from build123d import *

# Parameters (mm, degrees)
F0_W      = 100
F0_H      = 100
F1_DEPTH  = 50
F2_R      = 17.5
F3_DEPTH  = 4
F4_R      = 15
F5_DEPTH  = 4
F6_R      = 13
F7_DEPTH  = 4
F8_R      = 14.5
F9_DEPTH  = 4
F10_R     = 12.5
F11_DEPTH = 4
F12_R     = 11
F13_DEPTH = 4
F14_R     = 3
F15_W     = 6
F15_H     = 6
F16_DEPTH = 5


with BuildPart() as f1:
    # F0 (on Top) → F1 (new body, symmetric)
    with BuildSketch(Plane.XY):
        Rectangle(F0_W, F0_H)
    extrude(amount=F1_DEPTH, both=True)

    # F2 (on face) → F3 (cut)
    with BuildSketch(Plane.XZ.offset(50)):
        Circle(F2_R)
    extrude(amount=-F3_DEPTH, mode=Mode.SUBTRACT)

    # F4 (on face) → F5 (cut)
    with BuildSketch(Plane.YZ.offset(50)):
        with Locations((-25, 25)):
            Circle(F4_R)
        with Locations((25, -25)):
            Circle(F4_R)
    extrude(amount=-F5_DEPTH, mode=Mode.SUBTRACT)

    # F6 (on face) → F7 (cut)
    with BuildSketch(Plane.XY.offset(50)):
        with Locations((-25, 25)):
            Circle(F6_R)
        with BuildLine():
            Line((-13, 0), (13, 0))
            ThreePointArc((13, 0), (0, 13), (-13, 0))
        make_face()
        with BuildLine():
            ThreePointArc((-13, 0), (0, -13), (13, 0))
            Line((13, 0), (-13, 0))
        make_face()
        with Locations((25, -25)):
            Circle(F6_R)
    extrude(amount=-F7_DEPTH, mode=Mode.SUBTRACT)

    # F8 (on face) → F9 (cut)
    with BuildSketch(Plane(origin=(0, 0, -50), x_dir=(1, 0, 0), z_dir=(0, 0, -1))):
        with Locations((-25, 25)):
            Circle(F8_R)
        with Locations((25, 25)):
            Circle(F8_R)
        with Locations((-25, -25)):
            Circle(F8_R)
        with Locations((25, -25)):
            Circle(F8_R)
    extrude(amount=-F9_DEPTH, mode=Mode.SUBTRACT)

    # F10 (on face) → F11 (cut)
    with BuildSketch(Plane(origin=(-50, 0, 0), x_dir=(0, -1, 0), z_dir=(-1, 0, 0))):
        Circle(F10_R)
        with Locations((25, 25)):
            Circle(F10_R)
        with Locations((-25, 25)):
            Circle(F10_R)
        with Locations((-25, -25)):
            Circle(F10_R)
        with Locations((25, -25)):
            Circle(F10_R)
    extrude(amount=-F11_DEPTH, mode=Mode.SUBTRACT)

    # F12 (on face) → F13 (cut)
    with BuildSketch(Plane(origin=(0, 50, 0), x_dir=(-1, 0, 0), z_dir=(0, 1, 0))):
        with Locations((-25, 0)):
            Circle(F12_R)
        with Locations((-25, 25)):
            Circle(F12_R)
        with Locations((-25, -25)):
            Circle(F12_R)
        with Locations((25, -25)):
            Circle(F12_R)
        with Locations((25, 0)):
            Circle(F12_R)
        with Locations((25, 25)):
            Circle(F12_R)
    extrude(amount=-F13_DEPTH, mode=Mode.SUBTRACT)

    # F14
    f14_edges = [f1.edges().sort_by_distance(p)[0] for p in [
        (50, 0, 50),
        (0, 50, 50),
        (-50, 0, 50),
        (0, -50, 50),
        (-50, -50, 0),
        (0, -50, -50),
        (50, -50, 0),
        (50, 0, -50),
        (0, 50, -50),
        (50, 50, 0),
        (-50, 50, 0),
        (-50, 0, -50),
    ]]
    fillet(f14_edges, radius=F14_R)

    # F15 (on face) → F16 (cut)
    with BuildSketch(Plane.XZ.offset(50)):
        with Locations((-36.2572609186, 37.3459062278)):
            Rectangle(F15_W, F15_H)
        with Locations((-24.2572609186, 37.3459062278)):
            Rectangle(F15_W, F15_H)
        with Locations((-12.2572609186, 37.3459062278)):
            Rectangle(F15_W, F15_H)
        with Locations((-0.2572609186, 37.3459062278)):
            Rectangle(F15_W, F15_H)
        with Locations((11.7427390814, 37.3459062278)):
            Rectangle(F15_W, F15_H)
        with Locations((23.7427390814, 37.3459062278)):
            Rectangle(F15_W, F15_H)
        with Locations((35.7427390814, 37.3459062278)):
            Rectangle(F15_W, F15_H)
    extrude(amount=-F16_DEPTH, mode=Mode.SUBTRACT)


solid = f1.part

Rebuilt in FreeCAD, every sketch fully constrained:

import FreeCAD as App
import Part
import Sketcher
from FreeCAD import Vector


def edges_at(feature, points):
    """Names of the edges that pass closest to the given points."""
    edges = feature.Shape.Edges
    near = lambda p: min(range(len(edges)), key=lambda i: edges[i].distToShape(Part.Vertex(*p))[0])
    return sorted({f"Edge{near(p) + 1}" for p in points})

doc = App.newDocument("Part")
body = doc.addObject("PartDesign::Body", "Body")

# Sketch on XY plane
sketch1 = doc.addObject("Sketcher::SketchObject", "Sketch")
body.addObject(sketch1)
sketch1.AttachmentSupport = (doc.XY_Plane, [""])
sketch1.MapMode = "FlatFace"
sketch1.addGeometry([
    Part.LineSegment(Vector(-50, 50, 0), Vector(-50, -50, 0)),
    Part.LineSegment(Vector(-50, -50, 0), Vector(50, -50, 0)),
    Part.LineSegment(Vector(50, -50, 0), Vector(50, 50, 0)),
    Part.LineSegment(Vector(50, 50, 0), Vector(-50, 50, 0)),
], False)
sketch1.addConstraint([
    Sketcher.Constraint("Coincident", 0, 2, 1, 1),
    Sketcher.Constraint("Coincident", 1, 2, 2, 1),
    Sketcher.Constraint("Coincident", 2, 2, 3, 1),
    Sketcher.Constraint("Coincident", 3, 2, 0, 1),
    Sketcher.Constraint("Vertical", 0),
    Sketcher.Constraint("Horizontal", 1),
    Sketcher.Constraint("Vertical", 2),
    Sketcher.Constraint("Horizontal", 3),
    Sketcher.Constraint("Symmetric", 0, 2, 2, 2, -1, 1),
    Sketcher.Constraint("Equal", 3, 0),
    Sketcher.Constraint("DistanceX", 1, 1, 1, 2, 100.0),
])
pad1 = doc.addObject("PartDesign::Pad", "Pad")
body.addObject(pad1)
pad1.Profile = sketch1
pad1.Length = 100
pad1.Midplane = True

# Sketch on XZ plane
sketch2 = doc.addObject("Sketcher::SketchObject", "Sketch001")
body.addObject(sketch2)
sketch2.AttachmentSupport = (doc.XZ_Plane, [""])
sketch2.MapMode = "FlatFace"
sketch2.AttachmentOffset = App.Placement(Vector(0, 0, 50), App.Rotation())
sketch2.addGeometry(Part.Circle(Vector(0, 0, 0), Vector(0, 0, 1), 18), False)
sketch2.addConstraint([
    Sketcher.Constraint("Coincident", 0, 3, -1, 1),
    Sketcher.Constraint("Diameter", 0, 35.0),
])
pocket1 = doc.addObject("PartDesign::Pocket", "Pocket")
body.addObject(pocket1)
pocket1.Profile = sketch2
pocket1.Length = 4

# Sketch on YZ plane
sketch3 = doc.addObject("Sketcher::SketchObject", "Sketch002")
body.addObject(sketch3)
sketch3.AttachmentSupport = (doc.YZ_Plane, [""])
sketch3.MapMode = "FlatFace"
sketch3.AttachmentOffset = App.Placement(Vector(0, 0, 50), App.Rotation())
sketch3.addGeometry([
    Part.Circle(Vector(-25, 25, 0), Vector(0, 0, 1), 15),
    Part.Circle(Vector(25, -25, 0), Vector(0, 0, 1), 15),
], False)
sketch3.addConstraint([
    Sketcher.Constraint("Equal", 0, 1),
    Sketcher.Constraint("Symmetric", 0, 3, 1, 3, -1, 1),
    Sketcher.Constraint("Diameter", 0, 30.0),
    Sketcher.Constraint("DistanceX", 0, 3, -1, 1, 25.0),
    Sketcher.Constraint("DistanceY", -1, 1, 0, 3, 25.0),
])
pocket2 = doc.addObject("PartDesign::Pocket", "Pocket001")
body.addObject(pocket2)
pocket2.Profile = sketch3
pocket2.Length = 4

# Sketch on XY plane
sketch4 = doc.addObject("Sketcher::SketchObject", "Sketch003")
body.addObject(sketch4)
sketch4.AttachmentSupport = (doc.XY_Plane, [""])
sketch4.MapMode = "FlatFace"
sketch4.AttachmentOffset = App.Placement(Vector(0, 0, 50), App.Rotation())
sketch4.addGeometry([
    Part.Circle(Vector(-25, 25, 0), Vector(0, 0, 1), 13),
    Part.Circle(Vector(0, 0, 0), Vector(0, 0, 1), 13),
    Part.Circle(Vector(25, -25, 0), Vector(0, 0, 1), 13),
], False)
sketch4.addConstraint([
    Sketcher.Constraint("Coincident", 1, 3, -1, 1),
    Sketcher.Constraint("Equal", 0, 1),
    Sketcher.Constraint("Equal", 1, 2),
    Sketcher.Constraint("Symmetric", 0, 3, 2, 3, -1, 1),
    Sketcher.Constraint("Diameter", 0, 26.0),
    Sketcher.Constraint("DistanceX", 0, 3, -1, 1, 25.0),
    Sketcher.Constraint("DistanceY", -1, 1, 0, 3, 25.0),
])
pocket3 = doc.addObject("PartDesign::Pocket", "Pocket002")
body.addObject(pocket3)
pocket3.Profile = sketch4
pocket3.Length = 4

# Sketch on XY plane
sketch5 = doc.addObject("Sketcher::SketchObject", "Sketch004")
body.addObject(sketch5)
sketch5.AttachmentSupport = (doc.XY_Plane, [""])
sketch5.MapMode = "FlatFace"
sketch5.AttachmentOffset = App.Placement(Vector(0, 0, -50), App.Rotation())
sketch5.addGeometry([
    Part.Circle(Vector(-25, -25, 0), Vector(0, 0, 1), 14),
    Part.Circle(Vector(25, -25, 0), Vector(0, 0, 1), 14),
    Part.Circle(Vector(-25, 25, 0), Vector(0, 0, 1), 14),
    Part.Circle(Vector(25, 25, 0), Vector(0, 0, 1), 14),
], False)
sketch5.addConstraint([
    Sketcher.Constraint("Equal", 0, 1),
    Sketcher.Constraint("Equal", 1, 2),
    Sketcher.Constraint("Equal", 2, 3),
    Sketcher.Constraint("Symmetric", 1, 3, 2, 3, -1, 1),
    Sketcher.Constraint("Symmetric", 0, 3, 3, 3, -1, 1),
    Sketcher.Constraint("Symmetric", 0, 3, 1, 3, -2),
    Sketcher.Constraint("Diameter", 0, 29.0),
    Sketcher.Constraint("DistanceX", 0, 3, -1, 1, 25.0),
    Sketcher.Constraint("DistanceY", 0, 3, -1, 1, 25.0),
])
pocket4 = doc.addObject("PartDesign::Pocket", "Pocket003")
body.addObject(pocket4)
pocket4.Profile = sketch5
pocket4.Length = 4
pocket4.Reversed = True

# Sketch on YZ plane
sketch6 = doc.addObject("Sketcher::SketchObject", "Sketch005")
body.addObject(sketch6)
sketch6.AttachmentSupport = (doc.YZ_Plane, [""])
sketch6.MapMode = "FlatFace"
sketch6.AttachmentOffset = App.Placement(Vector(0, 0, -50), App.Rotation())
sketch6.addGeometry([
    Part.Circle(Vector(0, 0, 0), Vector(0, 0, 1), 12),  # 0
    Part.Circle(Vector(-25, 25, 0), Vector(0, 0, 1), 12),  # 1
    Part.Circle(Vector(25, 25, 0), Vector(0, 0, 1), 12),  # 2
    Part.Circle(Vector(25, -25, 0), Vector(0, 0, 1), 12),  # 3
    Part.Circle(Vector(-25, -25, 0), Vector(0, 0, 1), 12),  # 4
], False)
sketch6.addConstraint([
    Sketcher.Constraint("Coincident", 0, 3, -1, 1),
    Sketcher.Constraint("Equal", 0, 1),
    Sketcher.Constraint("Equal", 1, 2),
    Sketcher.Constraint("Equal", 2, 3),
    Sketcher.Constraint("Equal", 3, 4),
    Sketcher.Constraint("Symmetric", 1, 3, 3, 3, -1, 1),
    Sketcher.Constraint("Symmetric", 2, 3, 4, 3, -1, 1),
    Sketcher.Constraint("Symmetric", 1, 3, 2, 3, -2),
    Sketcher.Constraint("Diameter", 0, 25.0),
    Sketcher.Constraint("DistanceX", 1, 3, -1, 1, 25.0),
    Sketcher.Constraint("DistanceY", -1, 1, 1, 3, 25.0),
])
pocket5 = doc.addObject("PartDesign::Pocket", "Pocket004")
body.addObject(pocket5)
pocket5.Profile = sketch6
pocket5.Length = 4
pocket5.Reversed = True

# Sketch on XZ plane
sketch7 = doc.addObject("Sketcher::SketchObject", "Sketch006")
body.addObject(sketch7)
sketch7.AttachmentSupport = (doc.XZ_Plane, [""])
sketch7.MapMode = "FlatFace"
sketch7.AttachmentOffset = App.Placement(Vector(0, 0, -50), App.Rotation())
sketch7.addGeometry([
    Part.Circle(Vector(25, 0, 0), Vector(0, 0, 1), 11),  # 0
    Part.Circle(Vector(25, 25, 0), Vector(0, 0, 1), 11),  # 1
    Part.Circle(Vector(25, -25, 0), Vector(0, 0, 1), 11),  # 2
    Part.Circle(Vector(-25, -25, 0), Vector(0, 0, 1), 11),  # 3
    Part.Circle(Vector(-25, 0, 0), Vector(0, 0, 1), 11),  # 4
    Part.Circle(Vector(-25, 25, 0), Vector(0, 0, 1), 11),  # 5
], False)
sketch7.addConstraint([
    Sketcher.Constraint("Equal", 0, 1),
    Sketcher.Constraint("Equal", 1, 2),
    Sketcher.Constraint("Equal", 2, 3),
    Sketcher.Constraint("Equal", 3, 4),
    Sketcher.Constraint("Equal", 4, 5),
    Sketcher.Constraint("Symmetric", 1, 3, 3, 3, -1, 1),
    Sketcher.Constraint("Symmetric", 0, 3, 4, 3, -1, 1),
    Sketcher.Constraint("Symmetric", 2, 3, 5, 3, -1, 1),
    Sketcher.Constraint("Symmetric", 2, 3, 3, 3, -2),
    Sketcher.Constraint("PointOnObject", 0, 3, -1),
    Sketcher.Constraint("Vertical", 0, 3, 1, 3),
    Sketcher.Constraint("Diameter", 0, 22.0),
    Sketcher.Constraint("DistanceX", -1, 1, 0, 3, 25.0),
    Sketcher.Constraint("DistanceY", -1, 1, 1, 3, 25.0),
])
pocket6 = doc.addObject("PartDesign::Pocket", "Pocket005")
body.addObject(pocket6)
pocket6.Profile = sketch7
pocket6.Length = 4
pocket6.Reversed = True
doc.recompute()

fillet = doc.addObject("PartDesign::Fillet", "Fillet")
body.addObject(fillet)
fillet.Base = (pocket6, edges_at(pocket6, [
    (50, 0, 50),
    (0, 50, 50),
    (-50, 0, 50),
    (0, -50, 50),
    (-50, -50, 0),
    (0, -50, -50),
    (50, -50, 0),
    (50, 0, -50),
    (0, 50, -50),
    (50, 50, 0),
    (-50, 50, 0),
    (-50, 0, -50),
]))
fillet.Radius = 3

# Sketch on XZ plane
sketch8 = doc.addObject("Sketcher::SketchObject", "Sketch007")
body.addObject(sketch8)
sketch8.AttachmentSupport = (doc.XZ_Plane, [""])
sketch8.MapMode = "FlatFace"
sketch8.AttachmentOffset = App.Placement(Vector(0, 0, 50), App.Rotation())
sketch8.addGeometry([
    Part.LineSegment(Vector(-39, 40, 0), Vector(-39, 34, 0)),  # 0
    Part.LineSegment(Vector(-39, 34, 0), Vector(-33, 34, 0)),  # 1
    Part.LineSegment(Vector(-33, 34, 0), Vector(-33, 40, 0)),  # 2
    Part.LineSegment(Vector(-33, 40, 0), Vector(-39, 40, 0)),  # 3
    Part.LineSegment(Vector(-27, 40, 0), Vector(-27, 34, 0)),  # 4
    Part.LineSegment(Vector(-27, 34, 0), Vector(-21, 34, 0)),  # 5
    Part.LineSegment(Vector(-21, 34, 0), Vector(-21, 40, 0)),  # 6
    Part.LineSegment(Vector(-21, 40, 0), Vector(-27, 40, 0)),  # 7
    Part.LineSegment(Vector(-15, 40, 0), Vector(-15, 34, 0)),  # 8
    Part.LineSegment(Vector(-15, 34, 0), Vector(-9, 34, 0)),  # 9
    Part.LineSegment(Vector(-9, 34, 0), Vector(-9, 40, 0)),  # 10
    Part.LineSegment(Vector(-9, 40, 0), Vector(-15, 40, 0)),  # 11
    Part.LineSegment(Vector(-3, 40, 0), Vector(-3, 34, 0)),  # 12
    Part.LineSegment(Vector(-3, 34, 0), Vector(3, 34, 0)),  # 13
    Part.LineSegment(Vector(3, 34, 0), Vector(3, 40, 0)),  # 14
    Part.LineSegment(Vector(3, 40, 0), Vector(-3, 40, 0)),  # 15
    Part.LineSegment(Vector(9, 40, 0), Vector(9, 34, 0)),  # 16
    Part.LineSegment(Vector(9, 34, 0), Vector(15, 34, 0)),  # 17
    Part.LineSegment(Vector(15, 34, 0), Vector(15, 40, 0)),  # 18
    Part.LineSegment(Vector(15, 40, 0), Vector(9, 40, 0)),  # 19
    Part.LineSegment(Vector(21, 40, 0), Vector(21, 34, 0)),  # 20
    Part.LineSegment(Vector(21, 34, 0), Vector(27, 34, 0)),  # 21
    Part.LineSegment(Vector(27, 34, 0), Vector(27, 40, 0)),  # 22
    Part.LineSegment(Vector(27, 40, 0), Vector(21, 40, 0)),  # 23
    Part.LineSegment(Vector(33, 40, 0), Vector(33, 34, 0)),  # 24
    Part.LineSegment(Vector(33, 34, 0), Vector(39, 34, 0)),  # 25
    Part.LineSegment(Vector(39, 34, 0), Vector(39, 40, 0)),  # 26
    Part.LineSegment(Vector(39, 40, 0), Vector(33, 40, 0)),  # 27
], False)
sketch8.addConstraint([
    Sketcher.Constraint("Coincident", 0, 2, 1, 1),
    Sketcher.Constraint("Coincident", 1, 2, 2, 1),
    Sketcher.Constraint("Coincident", 2, 2, 3, 1),
    Sketcher.Constraint("Coincident", 3, 2, 0, 1),
    Sketcher.Constraint("Coincident", 4, 2, 5, 1),
    Sketcher.Constraint("Coincident", 5, 2, 6, 1),
    Sketcher.Constraint("Coincident", 6, 2, 7, 1),
    Sketcher.Constraint("Coincident", 7, 2, 4, 1),
    Sketcher.Constraint("Coincident", 8, 2, 9, 1),
    Sketcher.Constraint("Coincident", 9, 2, 10, 1),
    Sketcher.Constraint("Coincident", 10, 2, 11, 1),
    Sketcher.Constraint("Coincident", 11, 2, 8, 1),
    Sketcher.Constraint("Coincident", 12, 2, 13, 1),
    Sketcher.Constraint("Coincident", 13, 2, 14, 1),
    Sketcher.Constraint("Coincident", 14, 2, 15, 1),
    Sketcher.Constraint("Coincident", 15, 2, 12, 1),
    Sketcher.Constraint("Coincident", 16, 2, 17, 1),
    Sketcher.Constraint("Coincident", 17, 2, 18, 1),
    Sketcher.Constraint("Coincident", 18, 2, 19, 1),
    Sketcher.Constraint("Coincident", 19, 2, 16, 1),
    Sketcher.Constraint("Coincident", 20, 2, 21, 1),
    Sketcher.Constraint("Coincident", 21, 2, 22, 1),
    Sketcher.Constraint("Coincident", 22, 2, 23, 1),
    Sketcher.Constraint("Coincident", 23, 2, 20, 1),
    Sketcher.Constraint("Coincident", 24, 2, 25, 1),
    Sketcher.Constraint("Coincident", 25, 2, 26, 1),
    Sketcher.Constraint("Coincident", 26, 2, 27, 1),
    Sketcher.Constraint("Coincident", 27, 2, 24, 1),
    Sketcher.Constraint("Vertical", 0),
    Sketcher.Constraint("Horizontal", 1),
    Sketcher.Constraint("Vertical", 2),
    Sketcher.Constraint("Horizontal", 3),
    Sketcher.Constraint("Vertical", 4),
    Sketcher.Constraint("Horizontal", 5),
    Sketcher.Constraint("Vertical", 6),
    Sketcher.Constraint("Horizontal", 7),
    Sketcher.Constraint("Vertical", 8),
    Sketcher.Constraint("Horizontal", 9),
    Sketcher.Constraint("Vertical", 10),
    Sketcher.Constraint("Horizontal", 11),
    Sketcher.Constraint("Vertical", 12),
    Sketcher.Constraint("Horizontal", 13),
    Sketcher.Constraint("Vertical", 14),
    Sketcher.Constraint("Horizontal", 15),
    Sketcher.Constraint("Vertical", 16),
    Sketcher.Constraint("Horizontal", 17),
    Sketcher.Constraint("Vertical", 18),
    Sketcher.Constraint("Horizontal", 19),
    Sketcher.Constraint("Vertical", 20),
    Sketcher.Constraint("Horizontal", 21),
    Sketcher.Constraint("Vertical", 22),
    Sketcher.Constraint("Horizontal", 23),
    Sketcher.Constraint("Vertical", 24),
    Sketcher.Constraint("Horizontal", 25),
    Sketcher.Constraint("Vertical", 26),
    Sketcher.Constraint("Horizontal", 27),
    Sketcher.Constraint("Horizontal", 1, 2, 4, 2),
    Sketcher.Constraint("Horizontal", 3, 2, 6, 2),
    Sketcher.Constraint("Horizontal", 5, 2, 8, 2),
    Sketcher.Constraint("Horizontal", 7, 2, 10, 2),
    Sketcher.Constraint("Horizontal", 9, 2, 12, 2),
    Sketcher.Constraint("Horizontal", 11, 2, 14, 2),
    Sketcher.Constraint("Horizontal", 13, 2, 16, 2),
    Sketcher.Constraint("Horizontal", 15, 2, 18, 2),
    Sketcher.Constraint("Horizontal", 17, 2, 20, 2),
    Sketcher.Constraint("Horizontal", 19, 2, 22, 2),
    Sketcher.Constraint("Horizontal", 21, 2, 24, 2),
    Sketcher.Constraint("Horizontal", 23, 2, 26, 2),
    Sketcher.Constraint("Equal", 3, 5),
    Sketcher.Constraint("Equal", 7, 9),
    Sketcher.Constraint("Equal", 11, 13),
    Sketcher.Constraint("Equal", 15, 17),
    Sketcher.Constraint("Equal", 19, 21),
    Sketcher.Constraint("Equal", 23, 25),
    Sketcher.Constraint("Equal", 27, 0),
    Sketcher.Constraint("DistanceX", 1, 1, 1, 2, 6.0),
    Sketcher.Constraint("DistanceX", 1, 2, 4, 2, 6.0),
    Sketcher.Constraint("DistanceX", 5, 2, 8, 2, 6.0),
    Sketcher.Constraint("DistanceX", 9, 2, 12, 2, 6.0),
    Sketcher.Constraint("DistanceX", 13, 2, 16, 2, 6.0),
    Sketcher.Constraint("DistanceX", 17, 2, 20, 2, 6.0),
    Sketcher.Constraint("DistanceX", 21, 2, 24, 2, 6.0),
    Sketcher.Constraint("DistanceX", 0, 2, -1, 1, 39.257261),
    Sketcher.Constraint("DistanceY", -1, 1, 0, 2, 34.345906),
])
pocket7 = doc.addObject("PartDesign::Pocket", "Pocket006")
body.addObject(pocket7)
pocket7.Profile = sketch8
pocket7.Length = 5

doc.recompute()
